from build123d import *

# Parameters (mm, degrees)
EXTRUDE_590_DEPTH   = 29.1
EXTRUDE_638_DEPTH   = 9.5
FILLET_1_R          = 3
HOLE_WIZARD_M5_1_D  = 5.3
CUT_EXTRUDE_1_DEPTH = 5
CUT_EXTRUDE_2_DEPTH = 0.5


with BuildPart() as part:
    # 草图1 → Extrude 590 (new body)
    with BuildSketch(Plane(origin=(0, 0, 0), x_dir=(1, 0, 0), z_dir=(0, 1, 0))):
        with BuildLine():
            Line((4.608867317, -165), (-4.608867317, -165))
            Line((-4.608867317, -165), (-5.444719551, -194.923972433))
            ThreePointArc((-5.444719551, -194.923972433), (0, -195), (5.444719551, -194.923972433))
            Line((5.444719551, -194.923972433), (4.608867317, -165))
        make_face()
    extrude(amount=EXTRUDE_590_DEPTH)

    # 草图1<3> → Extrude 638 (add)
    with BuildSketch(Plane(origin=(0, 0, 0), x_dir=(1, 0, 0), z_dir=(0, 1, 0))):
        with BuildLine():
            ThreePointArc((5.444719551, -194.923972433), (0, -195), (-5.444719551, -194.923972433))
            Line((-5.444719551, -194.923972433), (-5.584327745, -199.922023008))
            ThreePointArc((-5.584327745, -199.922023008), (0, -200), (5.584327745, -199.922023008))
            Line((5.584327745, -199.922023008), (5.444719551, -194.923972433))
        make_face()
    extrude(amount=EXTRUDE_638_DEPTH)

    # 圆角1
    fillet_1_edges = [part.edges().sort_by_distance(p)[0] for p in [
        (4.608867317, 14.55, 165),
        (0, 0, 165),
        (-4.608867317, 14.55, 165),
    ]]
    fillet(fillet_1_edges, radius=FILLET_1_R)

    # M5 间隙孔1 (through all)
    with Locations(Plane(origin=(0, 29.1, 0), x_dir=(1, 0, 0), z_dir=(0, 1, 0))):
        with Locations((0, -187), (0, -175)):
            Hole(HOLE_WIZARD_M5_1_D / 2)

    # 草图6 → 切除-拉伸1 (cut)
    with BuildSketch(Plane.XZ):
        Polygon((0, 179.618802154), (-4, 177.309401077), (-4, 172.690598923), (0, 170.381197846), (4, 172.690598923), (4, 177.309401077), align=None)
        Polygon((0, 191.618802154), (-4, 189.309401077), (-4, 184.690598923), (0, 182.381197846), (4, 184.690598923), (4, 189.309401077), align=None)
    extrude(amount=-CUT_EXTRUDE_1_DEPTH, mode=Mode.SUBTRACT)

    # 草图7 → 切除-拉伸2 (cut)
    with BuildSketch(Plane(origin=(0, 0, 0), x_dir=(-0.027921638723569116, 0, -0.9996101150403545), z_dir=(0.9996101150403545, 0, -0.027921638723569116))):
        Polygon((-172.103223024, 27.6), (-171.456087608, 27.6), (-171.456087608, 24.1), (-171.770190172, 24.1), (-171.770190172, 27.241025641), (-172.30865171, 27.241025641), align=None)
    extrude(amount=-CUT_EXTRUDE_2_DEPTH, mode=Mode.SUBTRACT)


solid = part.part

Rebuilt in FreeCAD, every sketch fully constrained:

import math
import FreeCAD as App
import Part
import Sketcher

V = App.Vector
Q = App.Units.Quantity


def edges_at(feature, points):
    """Names of the edges that pass closest to the given points."""
    edges = feature.Shape.Edges
    near = lambda p: min(range(len(edges)), key=lambda i: edges[i].distToShape(Part.Vertex(*p))[0])
    return sorted({f"Edge{near(p) + 1}" for p in points})


def add_polygon(sketch, points):
    """Adds a closed chain of lines whose ends are joined by coincident constraints."""
    first, n = sketch.GeometryCount, len(points)
    for a, b in zip(points, points[1:] + points[:1]):
        sketch.addGeometry(Part.LineSegment(App.Vector(*a, 0), App.Vector(*b, 0)), False)
    for i in range(n):
        sketch.addConstraint(Sketcher.Constraint("Coincident", first + i, 2, first + (i + 1) % n, 1))

doc = App.newDocument("Part")
body = doc.addObject("PartDesign::Body", "Body")

sketch1 = doc.addObject("Sketcher::SketchObject", "Sketch")
body.addObject(sketch1)
sketch1.AttachmentSupport = (doc.XZ_Plane, [""])
sketch1.MapMode = "FlatFace"
sketch1.addGeometry(Part.LineSegment(V(5, 165, 0), V(-5, 165, 0)), False)
sketch1.addGeometry(Part.LineSegment(V(-5, 165, 0), V(-5, 195, 0)), False)
sketch1.addGeometry(Part.ArcOfCircle(Part.Circle(V(0, 0, 0), V(0, 0, 1), 195), math.radians(88.4), math.radians(91.6)), False)
sketch1.addGeometry(Part.LineSegment(V(5, 195, 0), V(5, 165, 0)), False)
sketch1.addConstraint(Sketcher.Constraint("Coincident", 0, 2, 1, 1))
sketch1.addConstraint(Sketcher.Constraint("Coincident", 1, 2, 2, 2))
sketch1.addConstraint(Sketcher.Constraint("Coincident", 2, 1, 3, 1))
sketch1.addConstraint(Sketcher.Constraint("Coincident", 3, 2, 0, 1))
sketch1.addConstraint(Sketcher.Constraint("Horizontal", 0))
sketch1.addConstraint(Sketcher.Constraint("Coincident", 2, 3, -1, 1))
sketch1.addConstraint(Sketcher.Constraint("Horizontal", 1, 2, 2, 1))
sketch1.addConstraint(Sketcher.Constraint("Equal", 1, 3))
sketch1.addConstraint(Sketcher.Constraint("Radius", 2, 195.0))
sketch1.addConstraint(Sketcher.Constraint("DistanceY", -1, 1, 0, 2, 165.0))
sketch1.addConstraint(Sketcher.Constraint("Angle", 1, Q("91.6 deg")))
sketch1.addConstraint(Sketcher.Constraint("DistanceX", 0, 2, 0, 1, 9.217735))
pad1 = doc.addObject("PartDesign::Pad", "Pad")
body.addObject(pad1)
pad1.Profile = sketch1
pad1.Length = 29.1
pad1.Reversed = True

sketch2 = doc.addObject("Sketcher::SketchObject", "Sketch001")
body.addObject(sketch2)
sketch2.AttachmentSupport = (doc.XZ_Plane, [""])
sketch2.MapMode = "FlatFace"
sketch2.addGeometry(Part.ArcOfCircle(Part.Circle(V(0, 0, 0), V(0, 0, 1), 195), math.radians(88.4), math.radians(91.6)), False)
sketch2.addGeometry(Part.LineSegment(V(-5.4, 194.9, 0), V(-5.6, 199.9, 0)), False)
sketch2.addGeometry(Part.ArcOfCircle(Part.Circle(V(0, 0, 0), V(0, 0, 1), 200), math.radians(88.4), math.radians(91.6)), False)
sketch2.addGeometry(Part.LineSegment(V(5.6, 199.9, 0), V(5.4, 194.9, 0)), False)
sketch2.addConstraint(Sketcher.Constraint("Coincident", 0, 2, 1, 1))
sketch2.addConstraint(Sketcher.Constraint("Coincident", 1, 2, 2, 2))
sketch2.addConstraint(Sketcher.Constraint("Coincident", 2, 1, 3, 1))
sketch2.addConstraint(Sketcher.Constraint("Coincident", 3, 2, 0, 1))
sketch2.addConstraint(Sketcher.Constraint("Coincident", 0, 3, -1, 1))
sketch2.addConstraint(Sketcher.Constraint("Coincident", 2, 3, -1, 1))
sketch2.addConstraint(Sketcher.Constraint("Horizontal", 1, 2, 2, 1))
sketch2.addConstraint(Sketcher.Constraint("Horizontal", 0, 2, 3, 2))
sketch2.addConstraint(Sketcher.Constraint("Radius", 0, 195.0))
sketch2.addConstraint(Sketcher.Constraint("Radius", 2, 200.0))
sketch2.addConstraint(Sketcher.Constraint("Angle", 1, Q("91.6 deg")))
sketch2.addConstraint(Sketcher.Constraint("DistanceX", 0, 2, -1, 1, 5.44472))
pad2 = doc.addObject("PartDesign::Pad", "Pad001")
body.addObject(pad2)
pad2.Profile = sketch2
pad2.Length = 9.5
pad2.Reversed = True
doc.recompute()

fillet = doc.addObject("PartDesign::Fillet", "Fillet")
body.addObject(fillet)
fillet.Base = (pad2, edges_at(pad2, [(4.609, 14.55, 165), (0, 0, 165), (-4.609, 14.55, 165)]))
fillet.Radius = 3

sketch3 = doc.addObject("Sketcher::SketchObject", "Sketch002")
body.addObject(sketch3)
sketch3.AttachmentSupport = (doc.XZ_Plane, [""])
sketch3.MapMode = "FlatFace"
sketch3.AttachmentOffset = App.Placement(V(0, 0, -29.1), App.Rotation())
sketch3.addGeometry(Part.Circle(V(0, 187, 0), V(0, 0, 1), 2.6), False)
sketch3.addGeometry(Part.Circle(V(0, 175, 0), V(0, 0, 1), 2.6), False)
sketch3.addConstraint(Sketcher.Constraint("Equal", 0, 1))
sketch3.addConstraint(Sketcher.Constraint("PointOnObject", 0, 3, -2))
sketch3.addConstraint(Sketcher.Constraint("PointOnObject", 1, 3, -2))
sketch3.addConstraint(Sketcher.Constraint("Diameter", 0, 5.3))
sketch3.addConstraint(Sketcher.Constraint("DistanceY", -1, 1, 0, 3, 187.0))
sketch3.addConstraint(Sketcher.Constraint("DistanceY", -1, 1, 1, 3, 175.0))
doc.recompute()
hole = doc.addObject("PartDesign::Hole", "Hole")
body.addObject(hole)
hole.Profile = sketch3
hole.ThreadType = "None"
hole.Diameter = 5.3
hole.DepthType = "ThroughAll"
hole.Reversed = True

sketch4 = doc.addObject("Sketcher::SketchObject", "Sketch003")
body.addObject(sketch4)
sketch4.AttachmentSupport = (doc.XZ_Plane, [""])
sketch4.MapMode = "FlatFace"
add_polygon(sketch4, [(0, 179.6), (-4, 177.3), (-4, 172.7), (0, 170.4), (4, 172.7), (4, 177.3)])
add_polygon(sketch4, [(0, 191.6), (-4, 189.3), (-4, 184.7), (0, 182.4), (4, 184.7), (4, 189.3)])
sketch4.addConstraint(Sketcher.Constraint("Vertical", 1))
sketch4.addConstraint(Sketcher.Constraint("Vertical", 4))
sketch4.addConstraint(Sketcher.Constraint("Vertical", 7))
sketch4.addConstraint(Sketcher.Constraint("Vertical", 10))
sketch4.addConstraint(Sketcher.Constraint("Symmetric", 1, 2, 3, 2, -2))
sketch4.addConstraint(Sketcher.Constraint("Symmetric", 7, 2, 9, 2, -2))
sketch4.addConstraint(Sketcher.Constraint("PointOnObject", 2, 2, -2))
sketch4.addConstraint(Sketcher.Constraint("PointOnObject", 5, 2, -2))
sketch4.addConstraint(Sketcher.Constraint("PointOnObject", 8, 2, -2))
sketch4.addConstraint(Sketcher.Constraint("PointOnObject", 11, 2, -2))
sketch4.addConstraint(Sketcher.Constraint("Parallel", 0, 3))
sketch4.addConstraint(Sketcher.Constraint("Parallel", 2, 5))
sketch4.addConstraint(Sketcher.Constraint("Parallel", 3, 6))
sketch4.addConstraint(Sketcher.Constraint("Parallel", 5, 8))
sketch4.addConstraint(Sketcher.Constraint("Parallel", 8, 11))
sketch4.addConstraint(Sketcher.Constraint("Vertical", 1, 2, 6, 2))
sketch4.addConstraint(Sketcher.Constraint("Equal", 4, 7))
sketch4.addConstraint(Sketcher.Constraint("Angle", 0, Q("-150 deg")))
sketch4.addConstraint(Sketcher.Constraint("DistanceX", 0, 2, -1, 1, 4.0))
sketch4.addConstraint(Sketcher.Constraint("DistanceY", 0, 2, 6, 2, 12.0))
sketch4.addConstraint(Sketcher.Constraint("DistanceY", -1, 1, 0, 2, 177.309401))
sketch4.addConstraint(Sketcher.Constraint("DistanceY", -1, 1, 1, 2, 172.690599))
pocket1 = doc.addObject("PartDesign::Pocket", "Pocket")
body.addObject(pocket1)
pocket1.Profile = sketch4
pocket1.Length = 5

sketch5 = doc.addObject("Sketcher::SketchObject", "Sketch004")
body.addObject(sketch5)
sketch5.Placement = App.Placement(V(0, 0, 0), App.Rotation(V(-0.027921639, 0, -0.999610115), V(0, 1, 0), V(0.999610115, 0, -0.027921639), "ZXY"))
add_polygon(sketch5, [(-171.46, 27.6), (-172.1, 27.6), (-172.31, 27.24), (-171.77, 27.24), (-171.77, 24.1), (-171.46, 24.1)])
sketch5.addConstraint(Sketcher.Constraint("Horizontal", 0))
sketch5.addConstraint(Sketcher.Constraint("Horizontal", 2))
sketch5.addConstraint(Sketcher.Constraint("Vertical", 3))
sketch5.addConstraint(Sketcher.Constraint("Horizontal", 4))
sketch5.addConstraint(Sketcher.Constraint("Vertical", 5))
sketch5.addConstraint(Sketcher.Constraint("DistanceY", 5, 1, 5, 2, 3.5))
sketch5.addConstraint(Sketcher.Constraint("DistanceY", -1, 1, 0, 2, 27.6))
sketch5.addConstraint(Sketcher.Constraint("Distance", 1, 0.413598))
sketch5.addConstraint(Sketcher.Constraint("DistanceX", 2, 1, 2, 2, 0.538462))
sketch5.addConstraint(Sketcher.Constraint("DistanceX", 0, 2, 0, 1, 0.647135))
sketch5.addConstraint(Sketcher.Constraint("DistanceX", 4, 1, 4, 2, 0.314103))
sketch5.addConstraint(Sketcher.Constraint("DistanceX", 1, 2, -1, 1, 172.308652))
pocket2 = doc.addObject("PartDesign::Pocket", "Pocket001")
body.addObject(pocket2)
pocket2.Profile = sketch5
pocket2.Length = 0.5

doc.recompute()
